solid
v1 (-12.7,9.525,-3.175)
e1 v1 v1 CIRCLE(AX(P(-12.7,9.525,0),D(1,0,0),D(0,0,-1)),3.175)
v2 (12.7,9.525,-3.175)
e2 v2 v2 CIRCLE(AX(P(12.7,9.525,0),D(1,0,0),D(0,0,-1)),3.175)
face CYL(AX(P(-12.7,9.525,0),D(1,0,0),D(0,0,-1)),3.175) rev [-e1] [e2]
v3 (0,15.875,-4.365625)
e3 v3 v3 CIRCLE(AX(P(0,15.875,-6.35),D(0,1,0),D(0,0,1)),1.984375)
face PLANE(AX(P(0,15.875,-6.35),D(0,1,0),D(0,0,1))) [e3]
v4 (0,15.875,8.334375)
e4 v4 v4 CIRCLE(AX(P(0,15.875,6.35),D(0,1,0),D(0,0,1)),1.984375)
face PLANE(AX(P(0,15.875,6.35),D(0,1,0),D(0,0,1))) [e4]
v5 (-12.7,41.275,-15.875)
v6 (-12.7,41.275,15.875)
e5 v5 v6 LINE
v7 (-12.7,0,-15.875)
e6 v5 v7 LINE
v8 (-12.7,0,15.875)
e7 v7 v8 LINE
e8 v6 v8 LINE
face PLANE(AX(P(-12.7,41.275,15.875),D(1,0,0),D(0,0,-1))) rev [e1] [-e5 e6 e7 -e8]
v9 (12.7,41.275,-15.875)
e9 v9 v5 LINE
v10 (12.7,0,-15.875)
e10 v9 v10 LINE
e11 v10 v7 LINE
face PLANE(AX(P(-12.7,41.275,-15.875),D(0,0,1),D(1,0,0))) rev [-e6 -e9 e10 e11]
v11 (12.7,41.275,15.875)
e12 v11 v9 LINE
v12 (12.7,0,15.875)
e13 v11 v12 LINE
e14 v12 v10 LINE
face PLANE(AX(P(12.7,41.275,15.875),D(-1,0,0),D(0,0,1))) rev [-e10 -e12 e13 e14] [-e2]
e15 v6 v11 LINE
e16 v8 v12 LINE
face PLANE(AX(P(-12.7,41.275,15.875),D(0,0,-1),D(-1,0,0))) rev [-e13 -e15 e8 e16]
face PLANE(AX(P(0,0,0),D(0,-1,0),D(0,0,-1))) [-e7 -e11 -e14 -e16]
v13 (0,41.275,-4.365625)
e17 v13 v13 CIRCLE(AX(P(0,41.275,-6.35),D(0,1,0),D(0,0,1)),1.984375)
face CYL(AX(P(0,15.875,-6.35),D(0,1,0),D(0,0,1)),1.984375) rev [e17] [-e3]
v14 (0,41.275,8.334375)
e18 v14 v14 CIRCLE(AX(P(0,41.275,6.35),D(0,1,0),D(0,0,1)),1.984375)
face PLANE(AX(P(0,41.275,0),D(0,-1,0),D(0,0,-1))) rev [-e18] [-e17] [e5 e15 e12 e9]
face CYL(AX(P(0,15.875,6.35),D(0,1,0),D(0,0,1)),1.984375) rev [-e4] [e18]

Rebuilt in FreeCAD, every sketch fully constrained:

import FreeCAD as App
import Part
import Sketcher
Q = App.Units.Quantity

doc = App.newDocument("Part")
body = doc.addObject("PartDesign::Body", "Body")

# Sketch on XZ plane
sketch1 = body.newObject("Sketcher::SketchObject", "Sketch")
sketch1.AttachmentSupport = (doc.getObject("XZ_Plane"), [""])
sketch1.MapMode = "FlatFace"
sketch1.addGeometry([
    Part.LineSegment(App.Vector(-13, -16, 0), App.Vector(-13, 16, 0)),
    Part.LineSegment(App.Vector(-13, 16, 0), App.Vector(13, 16, 0)),
    Part.LineSegment(App.Vector(13, 16, 0), App.Vector(13, -16, 0)),
    Part.LineSegment(App.Vector(13, -16, 0), App.Vector(-13, -16, 0)),
], False)
sketch1.addConstraint([
    Sketcher.Constraint("Coincident", 0, 2, 1, 1),
    Sketcher.Constraint("Coincident", 1, 2, 2, 1),
    Sketcher.Constraint("Coincident", 2, 2, 3, 1),
    Sketcher.Constraint("Coincident", 3, 2, 0, 1),
    Sketcher.Constraint("Vertical", 0),
    Sketcher.Constraint("Horizontal", 1),
    Sketcher.Constraint("Vertical", 2),
    Sketcher.Constraint("Horizontal", 3),
    Sketcher.Constraint("Symmetric", 0, 2, 2, 2, -1, 1),
    Sketcher.Constraint("DistanceX", 1, 1, 1, 2, Q("1 in")),
    Sketcher.Constraint("DistanceY", 0, 1, 0, 2, Q("1.25 in")),
])
pad1 = body.newObject("PartDesign::Pad", "Pad")
pad1.Profile = sketch1
pad1.Length = Q("1.625 in")
pad1.Reversed = True

# Sketch on YZ plane
sketch2 = body.newObject("Sketcher::SketchObject", "Sketch001")
sketch2.AttachmentSupport = (doc.getObject("YZ_Plane"), [""])
sketch2.MapMode = "FlatFace"
sketch2.AttachmentOffset = App.Placement(App.Vector(0, 0, 0.5 * 25.4), App.Rotation())
sketch2.addGeometry(Part.Circle(App.Vector(9.5, 0, 0), App.Vector(0, 0, 1), 3.2), False)
sketch2.addConstraint([
    Sketcher.Constraint("PointOnObject", 0, 3, -1),
    Sketcher.Constraint("Diameter", 0, Q("0.25 in")),
    Sketcher.Constraint("DistanceX", -1, 1, 0, 3, Q("0.375 in")),
])
pocket1 = body.newObject("PartDesign::Pocket", "Pocket")
pocket1.Profile = sketch2
pocket1.Type = "ThroughAll"

# Sketch on XZ plane
sketch3 = body.newObject("Sketcher::SketchObject", "Sketch002")
sketch3.AttachmentSupport = (doc.getObject("XZ_Plane"), [""])
sketch3.MapMode = "FlatFace"
sketch3.AttachmentOffset = App.Placement(App.Vector(0, 0, -1.625 * 25.4), App.Rotation())
sketch3.addGeometry([
    Part.Circle(App.Vector(0, -6.3, 0), App.Vector(0, 0, 1), 2),
    Part.Circle(App.Vector(0, 6.3, 0), App.Vector(0, 0, 1), 2),
], False)
sketch3.addConstraint([
    Sketcher.Constraint("Equal", 0, 1),
    Sketcher.Constraint("Symmetric", 0, 3, 1, 3, -1, 1),
    Sketcher.Constraint("PointOnObject", 0, 3, -2),
    Sketcher.Constraint("Diameter", 0, Q("0.15625 in")),
    Sketcher.Constraint("DistanceY", 0, 3, 1, 3, Q("0.5 in")),
])
pocket2 = body.newObject("PartDesign::Pocket", "Pocket001")
pocket2.Profile = sketch3
pocket2.Length = Q("1 in")
pocket2.Reversed = True

doc.recompute()
